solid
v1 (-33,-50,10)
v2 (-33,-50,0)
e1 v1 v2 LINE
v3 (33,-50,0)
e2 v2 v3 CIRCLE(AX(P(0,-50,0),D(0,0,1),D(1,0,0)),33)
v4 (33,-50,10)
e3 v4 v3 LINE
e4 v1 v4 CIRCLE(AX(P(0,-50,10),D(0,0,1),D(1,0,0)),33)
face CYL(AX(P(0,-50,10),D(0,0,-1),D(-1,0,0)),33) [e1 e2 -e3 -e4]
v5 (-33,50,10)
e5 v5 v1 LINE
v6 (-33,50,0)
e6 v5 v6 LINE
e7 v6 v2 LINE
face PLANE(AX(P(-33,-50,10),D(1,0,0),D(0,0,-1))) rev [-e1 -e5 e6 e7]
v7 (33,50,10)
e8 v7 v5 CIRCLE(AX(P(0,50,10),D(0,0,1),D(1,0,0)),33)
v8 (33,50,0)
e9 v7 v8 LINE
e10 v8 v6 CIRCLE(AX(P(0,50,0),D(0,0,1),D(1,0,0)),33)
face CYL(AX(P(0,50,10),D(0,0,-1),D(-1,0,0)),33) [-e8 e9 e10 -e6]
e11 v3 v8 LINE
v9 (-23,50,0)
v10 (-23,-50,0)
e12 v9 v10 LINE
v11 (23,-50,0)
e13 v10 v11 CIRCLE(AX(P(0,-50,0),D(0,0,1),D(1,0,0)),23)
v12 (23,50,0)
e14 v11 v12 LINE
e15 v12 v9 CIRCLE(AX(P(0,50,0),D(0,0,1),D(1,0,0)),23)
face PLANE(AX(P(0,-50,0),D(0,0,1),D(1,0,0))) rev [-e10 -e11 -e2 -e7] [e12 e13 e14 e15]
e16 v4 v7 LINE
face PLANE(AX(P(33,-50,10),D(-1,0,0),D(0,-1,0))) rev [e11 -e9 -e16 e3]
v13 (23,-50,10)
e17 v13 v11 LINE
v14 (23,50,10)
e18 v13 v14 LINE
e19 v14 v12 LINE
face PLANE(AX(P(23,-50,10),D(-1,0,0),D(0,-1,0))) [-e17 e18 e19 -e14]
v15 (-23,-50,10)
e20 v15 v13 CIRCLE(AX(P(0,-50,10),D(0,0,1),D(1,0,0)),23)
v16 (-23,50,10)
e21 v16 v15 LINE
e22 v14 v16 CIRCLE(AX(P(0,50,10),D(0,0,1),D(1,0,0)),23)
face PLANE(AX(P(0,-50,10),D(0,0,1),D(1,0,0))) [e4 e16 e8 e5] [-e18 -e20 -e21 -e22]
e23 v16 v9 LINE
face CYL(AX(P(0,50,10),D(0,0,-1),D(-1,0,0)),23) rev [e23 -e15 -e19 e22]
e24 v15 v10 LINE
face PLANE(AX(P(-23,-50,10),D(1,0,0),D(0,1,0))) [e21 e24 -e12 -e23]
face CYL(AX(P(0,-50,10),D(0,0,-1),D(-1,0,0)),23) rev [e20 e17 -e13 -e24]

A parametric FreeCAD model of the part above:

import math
import FreeCAD as App
import Part
import Sketcher

doc = App.newDocument("Part")
body = doc.addObject("PartDesign::Body", "Body")

# Sketch on XY plane
sketch1 = doc.addObject("Sketcher::SketchObject", "Sketch")
body.addObject(sketch1)
sketch1.AttachmentSupport = (doc.XY_Plane, [""])
sketch1.MapMode = "FlatFace"
sketch1.addGeometry([
    Part.LineSegment(App.Vector(-33, 50, 0), App.Vector(-33, -50, 0)),  # 0
    Part.ArcOfCircle(Part.Circle(App.Vector(0, -50, 0), App.Vector(0, 0, 1), 33), math.radians(180), math.radians(360)),  # 1
    Part.LineSegment(App.Vector(33, -50, 0), App.Vector(33, 50, 0)),  # 2
    Part.ArcOfCircle(Part.Circle(App.Vector(0, 50, 0), App.Vector(0, 0, 1), 33), math.radians(0), math.radians(180)),  # 3
    Part.LineSegment(App.Vector(-23, -50, 0), App.Vector(-23, 50, 0)),  # 4
    Part.ArcOfCircle(Part.Circle(App.Vector(0, 50, 0), App.Vector(0, 0, 1), 23), math.radians(0), math.radians(180)),  # 5
    Part.LineSegment(App.Vector(23, 50, 0), App.Vector(23, -50, 0)),  # 6
    Part.ArcOfCircle(Part.Circle(App.Vector(0, -50, 0), App.Vector(0, 0, 1), 23), math.radians(180), math.radians(360)),  # 7
], False)
sketch1.addConstraint([
    Sketcher.Constraint("Tangent", 0, 2, 1, 1),
    Sketcher.Constraint("Tangent", 1, 2, 2, 1),
    Sketcher.Constraint("Tangent", 2, 2, 3, 1),
    Sketcher.Constraint("Tangent", 3, 2, 0, 1),
    Sketcher.Constraint("Tangent", 4, 2, 5, 2),
    Sketcher.Constraint("Tangent", 5, 1, 6, 1),
    Sketcher.Constraint("Tangent", 6, 2, 7, 2),
    Sketcher.Constraint("Tangent", 7, 1, 4, 1),
    Sketcher.Constraint("Vertical", 0),
    Sketcher.Constraint("Vertical", 2),
    Sketcher.Constraint("Vertical", 4),
    Sketcher.Constraint("Vertical", 6),
    Sketcher.Constraint("Coincident", 5, 3, 3, 3),
    Sketcher.Constraint("Symmetric", 1, 3, 3, 3, -1, 1),
    Sketcher.Constraint("Horizontal", 7, 3, 0, 2),
    Sketcher.Constraint("Radius", 1, 33.0),
    Sketcher.Constraint("Radius", 5, 23.0),
    Sketcher.Constraint("DistanceY", 0, 2, 0, 1, 100.0),
])
pad1 = doc.addObject("PartDesign::Pad", "Pad")
body.addObject(pad1)
pad1.Profile = sketch1
pad1.Length = 10

doc.recompute()
